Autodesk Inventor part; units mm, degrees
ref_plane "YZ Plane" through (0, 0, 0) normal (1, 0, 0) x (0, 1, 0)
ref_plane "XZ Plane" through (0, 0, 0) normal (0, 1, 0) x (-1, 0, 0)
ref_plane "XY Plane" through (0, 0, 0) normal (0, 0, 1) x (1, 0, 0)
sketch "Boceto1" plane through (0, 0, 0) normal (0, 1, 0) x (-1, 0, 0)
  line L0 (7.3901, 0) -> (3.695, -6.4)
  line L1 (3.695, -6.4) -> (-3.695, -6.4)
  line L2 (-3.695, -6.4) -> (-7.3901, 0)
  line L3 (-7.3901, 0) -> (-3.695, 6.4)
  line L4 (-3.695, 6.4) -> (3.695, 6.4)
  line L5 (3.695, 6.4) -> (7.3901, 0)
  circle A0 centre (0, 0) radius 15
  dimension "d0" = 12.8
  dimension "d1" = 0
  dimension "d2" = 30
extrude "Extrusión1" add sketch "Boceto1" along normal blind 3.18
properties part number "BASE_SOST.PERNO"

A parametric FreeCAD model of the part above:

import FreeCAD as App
import Part
import Sketcher
Q = App.Units.Quantity

doc = App.newDocument("Part")
body = doc.addObject("PartDesign::Body", "Body")

# Sketch on XZ plane
sketch1 = body.newObject("Sketcher::SketchObject", "Sketch")
sketch1.AttachmentSupport = (doc.getObject("XZ_Plane"), [""])
sketch1.MapMode = "FlatFace"
sketch1.addGeometry(Part.Circle(App.Vector(0, 0, 0), App.Vector(0, 0, 1), 15), False)
sketch1.addGeometry(Part.LineSegment(App.Vector(-4, 6, 0), App.Vector(-7, 0, 0)), False)
sketch1.addGeometry(Part.LineSegment(App.Vector(-7, 0, 0), App.Vector(-4, -6, 0)), False)
sketch1.addGeometry(Part.LineSegment(App.Vector(-4, -6, 0), App.Vector(4, -6, 0)), False)
sketch1.addGeometry(Part.LineSegment(App.Vector(4, -6, 0), App.Vector(7, 0, 0)), False)
sketch1.addGeometry(Part.LineSegment(App.Vector(7, 0, 0), App.Vector(4, 6, 0)), False)
sketch1.addGeometry(Part.LineSegment(App.Vector(4, 6, 0), App.Vector(-4, 6, 0)), False)
sketch1.addConstraint(Sketcher.Constraint("Coincident", 1, 2, 2, 1))
sketch1.addConstraint(Sketcher.Constraint("Coincident", 2, 2, 3, 1))
sketch1.addConstraint(Sketcher.Constraint("Coincident", 3, 2, 4, 1))
sketch1.addConstraint(Sketcher.Constraint("Coincident", 4, 2, 5, 1))
sketch1.addConstraint(Sketcher.Constraint("Coincident", 5, 2, 6, 1))
sketch1.addConstraint(Sketcher.Constraint("Coincident", 6, 2, 1, 1))
sketch1.addConstraint(Sketcher.Constraint("Horizontal", 3))
sketch1.addConstraint(Sketcher.Constraint("Horizontal", 6))
sketch1.addConstraint(Sketcher.Constraint("Coincident", 0, 3, -1, 1))
sketch1.addConstraint(Sketcher.Constraint("Symmetric", 1, 2, 4, 2, -1, 1))
sketch1.addConstraint(Sketcher.Constraint("Symmetric", 2, 2, 5, 2, -1, 1))
sketch1.addConstraint(Sketcher.Constraint("PointOnObject", 1, 2, -1))
sketch1.addConstraint(Sketcher.Constraint("Parallel", 1, 4))
sketch1.addConstraint(Sketcher.Constraint("Vertical", 3, 2, 5, 2))
sketch1.addConstraint(Sketcher.Constraint("Diameter", 0, 30.0))
sketch1.addConstraint(Sketcher.Constraint("DistanceY", 3, 2, 5, 2, 12.8))
sketch1.addConstraint(Sketcher.Constraint("Angle", 1, Q("-120.0004 deg")))
sketch1.addConstraint(Sketcher.Constraint("DistanceX", 3, 1, 3, 2, 7.39))
pad1 = body.newObject("PartDesign::Pad", "Pad")
pad1.Profile = sketch1
pad1.Length = 3.18
pad1.Reversed = True

doc.recompute()
